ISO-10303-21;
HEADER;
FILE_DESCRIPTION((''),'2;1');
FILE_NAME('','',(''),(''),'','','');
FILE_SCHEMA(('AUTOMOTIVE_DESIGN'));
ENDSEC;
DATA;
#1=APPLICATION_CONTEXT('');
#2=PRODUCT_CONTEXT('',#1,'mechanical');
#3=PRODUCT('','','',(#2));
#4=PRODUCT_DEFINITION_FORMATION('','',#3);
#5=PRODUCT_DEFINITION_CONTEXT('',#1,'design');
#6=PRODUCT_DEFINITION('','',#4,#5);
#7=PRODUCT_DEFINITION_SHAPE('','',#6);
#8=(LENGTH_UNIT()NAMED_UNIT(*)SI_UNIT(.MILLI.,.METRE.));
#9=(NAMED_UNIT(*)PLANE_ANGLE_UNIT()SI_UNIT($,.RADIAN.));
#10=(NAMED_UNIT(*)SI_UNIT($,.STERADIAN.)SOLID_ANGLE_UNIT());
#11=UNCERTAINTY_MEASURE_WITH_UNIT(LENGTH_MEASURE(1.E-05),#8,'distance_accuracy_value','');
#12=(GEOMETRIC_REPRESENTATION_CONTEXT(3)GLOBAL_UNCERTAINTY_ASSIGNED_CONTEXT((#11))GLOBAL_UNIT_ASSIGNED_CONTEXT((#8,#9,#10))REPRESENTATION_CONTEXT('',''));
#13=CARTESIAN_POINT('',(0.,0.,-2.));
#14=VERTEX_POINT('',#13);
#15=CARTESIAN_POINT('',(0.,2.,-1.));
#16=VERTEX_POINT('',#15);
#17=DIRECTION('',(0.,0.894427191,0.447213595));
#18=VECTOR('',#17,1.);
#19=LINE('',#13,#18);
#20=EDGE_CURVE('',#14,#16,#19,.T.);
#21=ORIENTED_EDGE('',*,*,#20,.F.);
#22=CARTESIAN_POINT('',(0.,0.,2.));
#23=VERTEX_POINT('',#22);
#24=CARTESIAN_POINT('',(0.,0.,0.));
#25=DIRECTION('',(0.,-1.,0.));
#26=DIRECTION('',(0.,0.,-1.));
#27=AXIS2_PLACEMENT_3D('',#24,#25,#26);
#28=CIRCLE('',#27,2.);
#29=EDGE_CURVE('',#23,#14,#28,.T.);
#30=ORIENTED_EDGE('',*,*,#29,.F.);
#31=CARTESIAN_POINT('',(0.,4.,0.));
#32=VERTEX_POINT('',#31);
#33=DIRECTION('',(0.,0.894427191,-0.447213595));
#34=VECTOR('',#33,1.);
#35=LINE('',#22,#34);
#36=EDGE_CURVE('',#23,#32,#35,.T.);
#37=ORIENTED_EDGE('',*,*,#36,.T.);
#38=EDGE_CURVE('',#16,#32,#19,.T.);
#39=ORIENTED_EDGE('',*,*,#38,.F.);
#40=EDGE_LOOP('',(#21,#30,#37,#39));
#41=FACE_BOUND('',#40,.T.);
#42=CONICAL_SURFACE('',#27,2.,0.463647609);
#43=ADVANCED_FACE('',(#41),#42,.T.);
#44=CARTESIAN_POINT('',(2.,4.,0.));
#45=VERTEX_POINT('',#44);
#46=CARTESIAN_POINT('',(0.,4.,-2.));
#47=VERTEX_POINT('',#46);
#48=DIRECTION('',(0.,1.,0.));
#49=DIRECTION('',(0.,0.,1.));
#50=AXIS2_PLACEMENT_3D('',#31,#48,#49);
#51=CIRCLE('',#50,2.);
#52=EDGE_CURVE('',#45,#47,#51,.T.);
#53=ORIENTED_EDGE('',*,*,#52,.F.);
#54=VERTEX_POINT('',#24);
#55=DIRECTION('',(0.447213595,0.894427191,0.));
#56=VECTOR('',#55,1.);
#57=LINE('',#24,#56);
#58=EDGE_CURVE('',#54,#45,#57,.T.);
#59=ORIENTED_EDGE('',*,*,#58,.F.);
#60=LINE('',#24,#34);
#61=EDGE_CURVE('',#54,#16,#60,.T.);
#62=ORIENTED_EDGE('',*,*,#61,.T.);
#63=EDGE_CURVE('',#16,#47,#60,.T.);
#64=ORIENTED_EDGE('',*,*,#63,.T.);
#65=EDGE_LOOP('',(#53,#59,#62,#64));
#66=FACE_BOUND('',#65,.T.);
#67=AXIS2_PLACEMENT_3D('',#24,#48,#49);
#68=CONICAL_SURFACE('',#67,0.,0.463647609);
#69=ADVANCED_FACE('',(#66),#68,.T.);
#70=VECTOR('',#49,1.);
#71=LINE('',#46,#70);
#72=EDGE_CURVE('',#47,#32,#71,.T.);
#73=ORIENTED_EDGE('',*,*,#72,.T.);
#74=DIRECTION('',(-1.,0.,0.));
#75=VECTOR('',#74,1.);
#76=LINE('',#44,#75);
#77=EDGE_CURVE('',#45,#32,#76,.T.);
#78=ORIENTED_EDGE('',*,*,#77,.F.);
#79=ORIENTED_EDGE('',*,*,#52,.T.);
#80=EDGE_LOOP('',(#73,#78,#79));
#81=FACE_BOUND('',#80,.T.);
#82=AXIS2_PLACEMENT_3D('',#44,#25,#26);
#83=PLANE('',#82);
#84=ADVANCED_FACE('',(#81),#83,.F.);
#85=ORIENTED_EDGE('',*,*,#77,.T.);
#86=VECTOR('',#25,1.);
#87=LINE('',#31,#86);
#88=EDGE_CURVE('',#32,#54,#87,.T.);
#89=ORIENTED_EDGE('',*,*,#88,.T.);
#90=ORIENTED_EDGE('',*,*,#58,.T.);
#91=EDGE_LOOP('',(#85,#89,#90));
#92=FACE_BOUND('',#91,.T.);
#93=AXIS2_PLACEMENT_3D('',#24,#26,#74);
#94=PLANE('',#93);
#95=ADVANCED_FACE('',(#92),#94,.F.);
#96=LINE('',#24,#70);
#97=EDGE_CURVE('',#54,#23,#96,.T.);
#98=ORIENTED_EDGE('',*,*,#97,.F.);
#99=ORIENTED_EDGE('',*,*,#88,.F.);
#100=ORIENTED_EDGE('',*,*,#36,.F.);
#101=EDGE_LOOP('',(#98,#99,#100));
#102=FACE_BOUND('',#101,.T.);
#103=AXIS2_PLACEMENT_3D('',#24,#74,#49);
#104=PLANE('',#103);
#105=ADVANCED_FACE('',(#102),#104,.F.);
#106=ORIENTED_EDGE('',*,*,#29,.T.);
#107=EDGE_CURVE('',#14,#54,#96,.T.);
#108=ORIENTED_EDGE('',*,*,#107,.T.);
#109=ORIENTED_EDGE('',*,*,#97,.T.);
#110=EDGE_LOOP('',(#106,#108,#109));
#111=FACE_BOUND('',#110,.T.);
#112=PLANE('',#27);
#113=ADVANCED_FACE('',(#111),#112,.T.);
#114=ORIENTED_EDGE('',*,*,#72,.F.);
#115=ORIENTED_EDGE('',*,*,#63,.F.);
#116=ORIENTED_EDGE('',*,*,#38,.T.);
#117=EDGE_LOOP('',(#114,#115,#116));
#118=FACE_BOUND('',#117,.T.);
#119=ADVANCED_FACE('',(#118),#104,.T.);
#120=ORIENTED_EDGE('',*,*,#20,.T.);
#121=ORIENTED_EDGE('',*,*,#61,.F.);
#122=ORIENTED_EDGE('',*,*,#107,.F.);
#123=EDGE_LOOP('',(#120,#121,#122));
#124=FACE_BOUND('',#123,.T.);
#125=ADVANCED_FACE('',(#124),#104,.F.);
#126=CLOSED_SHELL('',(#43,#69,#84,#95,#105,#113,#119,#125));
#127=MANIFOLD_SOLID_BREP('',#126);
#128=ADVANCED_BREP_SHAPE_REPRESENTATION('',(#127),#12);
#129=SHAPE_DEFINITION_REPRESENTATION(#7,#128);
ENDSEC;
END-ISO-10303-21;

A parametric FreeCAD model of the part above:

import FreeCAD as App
import Part
import Sketcher
from FreeCAD import Vector


def add_polygon(sketch, points):
    """Adds a closed chain of lines whose ends are joined by coincident constraints."""
    first, n = sketch.GeometryCount, len(points)
    for a, b in zip(points, points[1:] + points[:1]):
        sketch.addGeometry(Part.LineSegment(App.Vector(*a, 0), App.Vector(*b, 0)), False)
    for i in range(n):
        sketch.addConstraint(Sketcher.Constraint("Coincident", first + i, 2, first + (i + 1) % n, 1))

doc = App.newDocument("Part")
body = doc.addObject("PartDesign::Body", "Body")

# Sketch on YZ plane
sketch1 = doc.addObject("Sketcher::SketchObject", "Sketch")
body.addObject(sketch1)
sketch1.AttachmentSupport = (doc.YZ_Plane, [""])
sketch1.MapMode = "FlatFace"
add_polygon(sketch1, [(0, 0), (0, -2), (4, 0)])  # lines 0-2
sketch1.addConstraint(Sketcher.Constraint("Vertical", 0))
sketch1.addConstraint(Sketcher.Constraint("Horizontal", 2))
sketch1.addConstraint(Sketcher.Constraint("Coincident", 2, 2, -1, 1))
sketch1.addConstraint(Sketcher.Constraint("DistanceX", 2, 2, 2, 1, 4.0))
sketch1.addConstraint(Sketcher.Constraint("DistanceY", 0, 2, 0, 1, 2.0))
revolution = doc.addObject("PartDesign::Revolution", "Revolution")
body.addObject(revolution)
revolution.Profile = sketch1
revolution.ReferenceAxis = (sketch1, ["H_Axis"])
revolution.Angle = 180

# Sketch on YZ plane
sketch2 = doc.addObject("Sketcher::SketchObject", "Sketch001")
body.addObject(sketch2)
sketch2.AttachmentSupport = (doc.YZ_Plane, [""])
sketch2.MapMode = "FlatFace"
add_polygon(sketch2, [(0, 0), (4, -2), (4, 0)])  # lines 0-2
sketch2.addConstraint(Sketcher.Constraint("Vertical", 1))
sketch2.addConstraint(Sketcher.Constraint("Horizontal", 2))
sketch2.addConstraint(Sketcher.Constraint("Coincident", 2, 2, -1, 1))
sketch2.addConstraint(Sketcher.Constraint("DistanceX", 2, 2, 2, 1, 4.0))
sketch2.addConstraint(Sketcher.Constraint("DistanceY", 1, 1, 1, 2, 2.0))
revolution2 = doc.addObject("PartDesign::Revolution", "Revolution001")
body.addObject(revolution2)
revolution2.Profile = sketch2
revolution2.ReferenceAxis = (sketch2, ["H_Axis"])
revolution2.Angle = 90
revolution2.Reversed = True

doc.recompute()
